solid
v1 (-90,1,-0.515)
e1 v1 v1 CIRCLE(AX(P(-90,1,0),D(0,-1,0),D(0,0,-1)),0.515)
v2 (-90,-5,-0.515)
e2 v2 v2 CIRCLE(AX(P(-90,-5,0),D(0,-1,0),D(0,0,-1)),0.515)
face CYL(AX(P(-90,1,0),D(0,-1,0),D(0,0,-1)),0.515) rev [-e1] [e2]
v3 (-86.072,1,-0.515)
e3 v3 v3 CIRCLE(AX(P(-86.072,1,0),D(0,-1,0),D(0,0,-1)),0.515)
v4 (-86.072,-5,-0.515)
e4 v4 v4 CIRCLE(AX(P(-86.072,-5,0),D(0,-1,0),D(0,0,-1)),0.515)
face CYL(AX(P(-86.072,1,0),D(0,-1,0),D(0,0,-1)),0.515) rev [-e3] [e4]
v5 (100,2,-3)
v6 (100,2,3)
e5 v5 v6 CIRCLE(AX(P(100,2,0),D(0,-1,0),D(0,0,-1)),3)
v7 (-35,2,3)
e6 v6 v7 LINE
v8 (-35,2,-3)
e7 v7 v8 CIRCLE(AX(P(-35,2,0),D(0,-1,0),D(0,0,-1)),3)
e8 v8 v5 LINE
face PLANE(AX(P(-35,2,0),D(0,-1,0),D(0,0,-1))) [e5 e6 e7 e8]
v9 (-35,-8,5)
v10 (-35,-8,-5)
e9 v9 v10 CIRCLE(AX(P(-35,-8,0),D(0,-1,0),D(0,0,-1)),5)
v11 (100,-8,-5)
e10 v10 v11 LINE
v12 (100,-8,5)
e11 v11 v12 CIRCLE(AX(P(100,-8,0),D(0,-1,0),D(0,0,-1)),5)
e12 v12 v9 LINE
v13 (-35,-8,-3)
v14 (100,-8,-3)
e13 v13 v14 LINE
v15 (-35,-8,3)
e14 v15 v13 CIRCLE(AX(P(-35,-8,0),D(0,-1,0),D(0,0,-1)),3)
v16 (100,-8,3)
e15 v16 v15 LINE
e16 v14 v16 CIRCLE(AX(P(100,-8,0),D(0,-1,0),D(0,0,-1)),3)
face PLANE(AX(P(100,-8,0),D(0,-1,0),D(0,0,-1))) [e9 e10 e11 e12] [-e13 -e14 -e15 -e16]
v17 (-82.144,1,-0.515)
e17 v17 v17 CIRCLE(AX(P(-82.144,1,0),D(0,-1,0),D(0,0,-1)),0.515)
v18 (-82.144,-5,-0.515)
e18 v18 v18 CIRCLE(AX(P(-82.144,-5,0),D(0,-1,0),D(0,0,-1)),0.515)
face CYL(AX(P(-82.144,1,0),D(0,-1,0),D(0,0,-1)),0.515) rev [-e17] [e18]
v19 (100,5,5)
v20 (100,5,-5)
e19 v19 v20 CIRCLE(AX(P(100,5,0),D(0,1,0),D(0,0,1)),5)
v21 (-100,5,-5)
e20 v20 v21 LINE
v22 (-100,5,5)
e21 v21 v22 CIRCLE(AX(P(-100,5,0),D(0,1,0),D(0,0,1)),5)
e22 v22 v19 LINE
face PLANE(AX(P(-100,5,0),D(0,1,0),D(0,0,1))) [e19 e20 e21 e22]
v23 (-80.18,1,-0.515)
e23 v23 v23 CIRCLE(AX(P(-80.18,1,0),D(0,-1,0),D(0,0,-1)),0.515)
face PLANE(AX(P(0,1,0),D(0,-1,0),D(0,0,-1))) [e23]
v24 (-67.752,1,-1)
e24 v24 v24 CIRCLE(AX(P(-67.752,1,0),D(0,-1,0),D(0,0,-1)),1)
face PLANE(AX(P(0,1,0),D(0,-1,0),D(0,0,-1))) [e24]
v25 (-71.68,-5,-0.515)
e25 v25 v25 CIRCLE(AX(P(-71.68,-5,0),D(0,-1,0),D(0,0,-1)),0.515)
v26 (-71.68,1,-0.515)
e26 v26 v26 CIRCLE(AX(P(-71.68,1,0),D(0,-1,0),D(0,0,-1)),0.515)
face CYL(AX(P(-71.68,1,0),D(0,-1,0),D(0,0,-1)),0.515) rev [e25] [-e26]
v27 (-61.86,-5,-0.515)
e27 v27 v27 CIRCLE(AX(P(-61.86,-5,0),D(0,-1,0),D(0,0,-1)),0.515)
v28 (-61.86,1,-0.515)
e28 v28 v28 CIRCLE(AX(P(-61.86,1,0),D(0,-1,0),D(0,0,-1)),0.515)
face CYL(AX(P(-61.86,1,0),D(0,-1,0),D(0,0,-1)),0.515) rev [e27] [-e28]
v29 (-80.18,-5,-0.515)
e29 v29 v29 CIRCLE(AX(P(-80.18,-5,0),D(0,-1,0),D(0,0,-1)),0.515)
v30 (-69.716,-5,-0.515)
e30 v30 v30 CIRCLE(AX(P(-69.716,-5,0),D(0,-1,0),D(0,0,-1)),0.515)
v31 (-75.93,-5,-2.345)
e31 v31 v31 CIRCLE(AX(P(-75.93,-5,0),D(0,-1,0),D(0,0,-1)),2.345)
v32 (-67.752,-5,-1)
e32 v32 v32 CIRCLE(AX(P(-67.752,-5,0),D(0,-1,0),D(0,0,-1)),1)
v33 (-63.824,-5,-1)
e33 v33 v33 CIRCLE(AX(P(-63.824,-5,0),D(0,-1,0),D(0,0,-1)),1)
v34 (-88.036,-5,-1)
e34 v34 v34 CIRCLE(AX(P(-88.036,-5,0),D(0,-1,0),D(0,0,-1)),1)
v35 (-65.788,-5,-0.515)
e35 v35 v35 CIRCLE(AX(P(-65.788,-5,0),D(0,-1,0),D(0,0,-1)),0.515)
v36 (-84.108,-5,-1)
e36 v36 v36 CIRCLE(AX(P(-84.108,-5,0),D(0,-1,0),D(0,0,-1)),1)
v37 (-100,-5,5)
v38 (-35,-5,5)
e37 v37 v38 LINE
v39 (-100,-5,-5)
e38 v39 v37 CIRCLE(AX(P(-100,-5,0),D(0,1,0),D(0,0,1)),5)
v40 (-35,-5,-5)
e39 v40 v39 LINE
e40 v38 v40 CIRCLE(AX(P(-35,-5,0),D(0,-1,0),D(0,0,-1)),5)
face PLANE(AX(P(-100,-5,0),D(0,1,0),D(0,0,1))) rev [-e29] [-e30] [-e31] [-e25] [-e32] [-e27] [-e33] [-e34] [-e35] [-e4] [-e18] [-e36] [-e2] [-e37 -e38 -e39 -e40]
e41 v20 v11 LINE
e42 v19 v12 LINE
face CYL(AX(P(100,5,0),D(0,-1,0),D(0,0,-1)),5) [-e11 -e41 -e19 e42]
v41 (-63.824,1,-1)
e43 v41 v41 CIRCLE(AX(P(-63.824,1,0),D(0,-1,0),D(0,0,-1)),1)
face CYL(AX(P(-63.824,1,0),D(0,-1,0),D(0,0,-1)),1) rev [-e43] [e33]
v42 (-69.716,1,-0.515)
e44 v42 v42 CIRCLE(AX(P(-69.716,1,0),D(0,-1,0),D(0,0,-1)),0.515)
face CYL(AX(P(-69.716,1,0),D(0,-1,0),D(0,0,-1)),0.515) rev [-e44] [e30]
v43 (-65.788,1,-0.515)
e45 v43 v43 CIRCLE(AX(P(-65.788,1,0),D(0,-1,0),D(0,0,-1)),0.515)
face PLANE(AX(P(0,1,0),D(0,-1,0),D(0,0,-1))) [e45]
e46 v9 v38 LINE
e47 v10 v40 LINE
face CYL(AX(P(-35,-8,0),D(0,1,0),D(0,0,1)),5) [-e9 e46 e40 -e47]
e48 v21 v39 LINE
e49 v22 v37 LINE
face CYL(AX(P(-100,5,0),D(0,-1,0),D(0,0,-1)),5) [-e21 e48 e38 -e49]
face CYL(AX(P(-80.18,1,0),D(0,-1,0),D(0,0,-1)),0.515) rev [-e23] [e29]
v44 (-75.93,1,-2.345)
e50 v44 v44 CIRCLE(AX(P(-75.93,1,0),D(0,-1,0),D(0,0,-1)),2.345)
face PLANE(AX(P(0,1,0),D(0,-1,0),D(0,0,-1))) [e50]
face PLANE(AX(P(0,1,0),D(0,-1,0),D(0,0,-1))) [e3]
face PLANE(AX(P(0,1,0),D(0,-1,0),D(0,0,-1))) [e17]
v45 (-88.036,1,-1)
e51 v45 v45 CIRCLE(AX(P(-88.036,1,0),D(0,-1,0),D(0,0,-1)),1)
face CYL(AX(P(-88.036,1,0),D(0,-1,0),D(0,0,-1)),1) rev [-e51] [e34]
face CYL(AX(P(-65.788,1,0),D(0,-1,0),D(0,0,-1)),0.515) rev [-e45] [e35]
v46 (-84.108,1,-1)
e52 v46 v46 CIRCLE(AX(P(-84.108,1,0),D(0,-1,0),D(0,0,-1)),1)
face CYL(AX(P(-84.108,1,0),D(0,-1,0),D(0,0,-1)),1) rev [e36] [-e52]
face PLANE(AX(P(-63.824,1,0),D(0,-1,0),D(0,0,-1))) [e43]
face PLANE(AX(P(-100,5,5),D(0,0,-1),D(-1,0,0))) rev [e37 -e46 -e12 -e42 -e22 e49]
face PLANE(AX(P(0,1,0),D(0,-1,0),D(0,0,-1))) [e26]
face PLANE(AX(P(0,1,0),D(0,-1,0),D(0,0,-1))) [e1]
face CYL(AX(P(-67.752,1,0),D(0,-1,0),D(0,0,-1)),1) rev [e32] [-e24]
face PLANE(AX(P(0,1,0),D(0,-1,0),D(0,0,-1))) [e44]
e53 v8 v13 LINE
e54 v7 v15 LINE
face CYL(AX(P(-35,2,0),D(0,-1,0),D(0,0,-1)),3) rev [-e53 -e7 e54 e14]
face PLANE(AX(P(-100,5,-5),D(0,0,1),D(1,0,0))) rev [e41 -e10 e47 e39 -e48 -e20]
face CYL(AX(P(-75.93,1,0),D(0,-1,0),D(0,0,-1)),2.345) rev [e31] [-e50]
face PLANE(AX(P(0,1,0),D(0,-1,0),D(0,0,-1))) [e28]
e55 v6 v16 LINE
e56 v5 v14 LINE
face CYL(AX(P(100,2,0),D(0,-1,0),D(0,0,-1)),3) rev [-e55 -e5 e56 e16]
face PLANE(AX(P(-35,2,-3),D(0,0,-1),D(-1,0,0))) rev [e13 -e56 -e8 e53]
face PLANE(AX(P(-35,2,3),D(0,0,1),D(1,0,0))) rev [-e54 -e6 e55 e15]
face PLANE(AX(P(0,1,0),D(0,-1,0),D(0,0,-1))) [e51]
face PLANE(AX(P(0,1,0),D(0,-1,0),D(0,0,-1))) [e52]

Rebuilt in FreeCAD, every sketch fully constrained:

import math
import FreeCAD as App
import Part
import Sketcher

doc = App.newDocument("Part")
params = doc.addObject("Spreadsheet::Sheet", "Params")
for row, (alias, value) in enumerate([
    ("sketch1_radius", "5 mm"),
    ("sketch1_width", "200 mm"),
    ("pad1_length", "10 mm"),
    ("sketch2_diameter", "2 mm"),
    ("sketch2_diameter2", "1.03 mm"),
    ("sketch2_diameter3", "4.69 mm"),
    ("pocket1_length", "6 mm"),
    ("sketch3_radius", "5 mm"),
    ("sketch3_width", "135 mm"),
    ("pad2_length", "3 mm"),
    ("sketch4_radius", "3 mm"),
    ("sketch4_width", "135 mm"),
    ("pocket2_length", "10 mm"),
], start=1):
    params.set(f"A{row}", alias)
    params.set(f"B{row}", "=" + value)
    params.setAlias(f"B{row}", alias)

body = doc.addObject("PartDesign::Body", "Body")

# Sketch on XZ plane
sketch1 = doc.addObject("Sketcher::SketchObject", "Sketch")
body.addObject(sketch1)
sketch1.AttachmentSupport = (doc.XZ_Plane, [""])
sketch1.MapMode = "FlatFace"
sketch1.addGeometry(Part.LineSegment(App.Vector(100, -5, 0), App.Vector(-100, -5, 0)), False)
sketch1.addGeometry(Part.ArcOfCircle(Part.Circle(App.Vector(-100, 0, 0), App.Vector(0, 0, 1), 5), math.radians(90), math.radians(270)), False)
sketch1.addGeometry(Part.LineSegment(App.Vector(-100, 5, 0), App.Vector(100, 5, 0)), False)
sketch1.addGeometry(Part.ArcOfCircle(Part.Circle(App.Vector(100, 0, 0), App.Vector(0, 0, 1), 5), math.radians(-90), math.radians(90)), False)
sketch1.addConstraint(Sketcher.Constraint("Tangent", 0, 2, 1, 2))
sketch1.addConstraint(Sketcher.Constraint("Tangent", 1, 1, 2, 1))
sketch1.addConstraint(Sketcher.Constraint("Tangent", 2, 2, 3, 2))
sketch1.addConstraint(Sketcher.Constraint("Tangent", 3, 1, 0, 1))
sketch1.addConstraint(Sketcher.Constraint("Horizontal", 0))
sketch1.addConstraint(Sketcher.Constraint("Horizontal", 2))
sketch1.addConstraint(Sketcher.Constraint("Symmetric", 1, 3, 3, 3, -1, 1))
sketch1.addConstraint(Sketcher.Constraint("Radius", 1, 5.0))
sketch1.addConstraint(Sketcher.Constraint("DistanceX", 0, 2, 0, 1, 200.0))
sketch1.setExpression("Constraints[7]", "Params.sketch1_radius")
sketch1.setExpression("Constraints[8]", "Params.sketch1_width")
pad1 = doc.addObject("PartDesign::Pad", "Pad")
body.addObject(pad1)
pad1.Profile = sketch1
pad1.setExpression("Length", "Params.pad1_length")
pad1.Midplane = True

# Sketch on XZ plane
sketch2 = doc.addObject("Sketcher::SketchObject", "Sketch001")
body.addObject(sketch2)
sketch2.AttachmentSupport = (doc.XZ_Plane, [""])
sketch2.MapMode = "FlatFace"
sketch2.AttachmentOffset = App.Placement(App.Vector(0, 0, 5), App.Rotation())
sketch2.addGeometry(Part.Circle(App.Vector(-90, 0, 0), App.Vector(0, 0, 1), 0.5), False)
sketch2.addGeometry(Part.Circle(App.Vector(-88, 0, 0), App.Vector(0, 0, 1), 1), False)
sketch2.addGeometry(Part.Circle(App.Vector(-86.1, 0, 0), App.Vector(0, 0, 1), 0.5), False)
sketch2.addGeometry(Part.Circle(App.Vector(-84.1, 0, 0), App.Vector(0, 0, 1), 1), False)
sketch2.addGeometry(Part.Circle(App.Vector(-82.1, 0, 0), App.Vector(0, 0, 1), 0.5), False)
sketch2.addGeometry(Part.Circle(App.Vector(-80.2, 0, 0), App.Vector(0, 0, 1), 0.5), False)
sketch2.addGeometry(Part.Circle(App.Vector(-75.9, 0, 0), App.Vector(0, 0, 1), 2.3), False)
sketch2.addGeometry(Part.Circle(App.Vector(-71.7, 0, 0), App.Vector(0, 0, 1), 0.5), False)
sketch2.addGeometry(Part.Circle(App.Vector(-69.7, 0, 0), App.Vector(0, 0, 1), 0.5), False)
sketch2.addGeometry(Part.Circle(App.Vector(-67.8, 0, 0), App.Vector(0, 0, 1), 1), False)
sketch2.addGeometry(Part.Circle(App.Vector(-65.8, 0, 0), App.Vector(0, 0, 1), 0.5), False)
sketch2.addGeometry(Part.Circle(App.Vector(-61.9, 0, 0), App.Vector(0, 0, 1), 0.5), False)
sketch2.addGeometry(Part.Circle(App.Vector(-63.8, 0, 0), App.Vector(0, 0, 1), 1), False)
sketch2.addConstraint(Sketcher.Constraint("Equal", 0, 2))
sketch2.addConstraint(Sketcher.Constraint("Equal", 1, 3))
sketch2.addConstraint(Sketcher.Constraint("Equal", 2, 4))
sketch2.addConstraint(Sketcher.Constraint("Equal", 4, 5))
sketch2.addConstraint(Sketcher.Constraint("Equal", 5, 7))
sketch2.addConstraint(Sketcher.Constraint("Equal", 7, 8))
sketch2.addConstraint(Sketcher.Constraint("Equal", 3, 9))
sketch2.addConstraint(Sketcher.Constraint("Equal", 8, 10))
sketch2.addConstraint(Sketcher.Constraint("Equal", 10, 11))
sketch2.addConstraint(Sketcher.Constraint("Equal", 9, 12))
sketch2.addConstraint(Sketcher.Constraint("PointOnObject", 0, 3, -1))
sketch2.addConstraint(Sketcher.Constraint("PointOnObject", 1, 3, -1))
sketch2.addConstraint(Sketcher.Constraint("PointOnObject", 2, 3, -1))
sketch2.addConstraint(Sketcher.Constraint("PointOnObject", 3, 3, -1))
sketch2.addConstraint(Sketcher.Constraint("PointOnObject", 4, 3, -1))
sketch2.addConstraint(Sketcher.Constraint("PointOnObject", 5, 3, -1))
sketch2.addConstraint(Sketcher.Constraint("PointOnObject", 6, 3, -1))
sketch2.addConstraint(Sketcher.Constraint("PointOnObject", 7, 3, -1))
sketch2.addConstraint(Sketcher.Constraint("PointOnObject", 8, 3, -1))
sketch2.addConstraint(Sketcher.Constraint("PointOnObject", 9, 3, -1))
sketch2.addConstraint(Sketcher.Constraint("PointOnObject", 10, 3, -1))
sketch2.addConstraint(Sketcher.Constraint("PointOnObject", 11, 3, -1))
sketch2.addConstraint(Sketcher.Constraint("PointOnObject", 12, 3, -1))
sketch2.addConstraint(Sketcher.Constraint("Diameter", 1, 2.0))
sketch2.addConstraint(Sketcher.Constraint("Diameter", 0, 1.03))
sketch2.addConstraint(Sketcher.Constraint("Diameter", 6, 4.69))
sketch2.addConstraint(Sketcher.Constraint("DistanceX", 0, 3, -1, 1, 90.0))
sketch2.addConstraint(Sketcher.Constraint("DistanceX", 5, 3, 7, 3, 8.5))
sketch2.addConstraint(Sketcher.Constraint("DistanceX", 5, 3, -1, 1, 80.18))
sketch2.addConstraint(Sketcher.Constraint("DistanceX", 6, 3, -1, 1, 75.93))
sketch2.addConstraint(Sketcher.Constraint("DistanceX", 11, 3, -1, 1, 61.86))
sketch2.addConstraint(Sketcher.Constraint("DistanceX", 1, 3, -1, 1, 88.036))
sketch2.addConstraint(Sketcher.Constraint("DistanceX", 2, 3, -1, 1, 86.072))
sketch2.addConstraint(Sketcher.Constraint("DistanceX", 3, 3, -1, 1, 84.108))
sketch2.addConstraint(Sketcher.Constraint("DistanceX", 4, 3, -1, 1, 82.144))
sketch2.addConstraint(Sketcher.Constraint("DistanceX", 8, 3, -1, 1, 69.716))
sketch2.addConstraint(Sketcher.Constraint("DistanceX", 9, 3, -1, 1, 67.752))
sketch2.addConstraint(Sketcher.Constraint("DistanceX", 10, 3, -1, 1, 65.788))
sketch2.addConstraint(Sketcher.Constraint("DistanceX", 12, 3, -1, 1, 63.824))
sketch2.setExpression("Constraints[23]", "Params.sketch2_diameter")
sketch2.setExpression("Constraints[24]", "Params.sketch2_diameter2")
sketch2.setExpression("Constraints[25]", "Params.sketch2_diameter3")
pocket1 = doc.addObject("PartDesign::Pocket", "Pocket")
body.addObject(pocket1)
pocket1.Profile = sketch2
pocket1.setExpression("Length", "Params.pocket1_length")

# Sketch on XZ plane
sketch3 = doc.addObject("Sketcher::SketchObject", "Sketch002")
body.addObject(sketch3)
sketch3.AttachmentSupport = (doc.XZ_Plane, [""])
sketch3.MapMode = "FlatFace"
sketch3.AttachmentOffset = App.Placement(App.Vector(0, 0, 5), App.Rotation())
sketch3.addGeometry(Part.LineSegment(App.Vector(-35, -5, 0), App.Vector(100, -5, 0)), False)
sketch3.addGeometry(Part.ArcOfCircle(Part.Circle(App.Vector(100, 0, 0), App.Vector(0, 0, 1), 5), math.radians(-90), math.radians(90)), False)
sketch3.addGeometry(Part.LineSegment(App.Vector(100, 5, 0), App.Vector(-35, 5, 0)), False)
sketch3.addGeometry(Part.ArcOfCircle(Part.Circle(App.Vector(-35, 0, 0), App.Vector(0, 0, 1), 5), math.radians(90), math.radians(270)), False)
sketch3.addConstraint(Sketcher.Constraint("Tangent", 0, 2, 1, 1))
sketch3.addConstraint(Sketcher.Constraint("Tangent", 1, 2, 2, 1))
sketch3.addConstraint(Sketcher.Constraint("Tangent", 2, 2, 3, 1))
sketch3.addConstraint(Sketcher.Constraint("Tangent", 3, 2, 0, 1))
sketch3.addConstraint(Sketcher.Constraint("Horizontal", 0))
sketch3.addConstraint(Sketcher.Constraint("Horizontal", 2))
sketch3.addConstraint(Sketcher.Constraint("PointOnObject", 1, 3, -1))
sketch3.addConstraint(Sketcher.Constraint("Radius", 1, 5.0))
sketch3.addConstraint(Sketcher.Constraint("DistanceX", 0, 1, 0, 2, 135.0))
sketch3.addConstraint(Sketcher.Constraint("DistanceX", -1, 1, 1, 3, 100.0))
sketch3.setExpression("Constraints[7]", "Params.sketch3_radius")
sketch3.setExpression("Constraints[8]", "Params.sketch3_width")
pad2 = doc.addObject("PartDesign::Pad", "Pad001")
body.addObject(pad2)
pad2.Profile = sketch3
pad2.setExpression("Length", "Params.pad2_length")

# Sketch on XZ plane
sketch4 = doc.addObject("Sketcher::SketchObject", "Sketch003")
body.addObject(sketch4)
sketch4.AttachmentSupport = (doc.XZ_Plane, [""])
sketch4.MapMode = "FlatFace"
sketch4.AttachmentOffset = App.Placement(App.Vector(0, 0, 8), App.Rotation())
sketch4.addGeometry(Part.LineSegment(App.Vector(100, 3, 0), App.Vector(-35, 3, 0)), False)
sketch4.addGeometry(Part.ArcOfCircle(Part.Circle(App.Vector(-35, 0, 0), App.Vector(0, 0, 1), 3), math.radians(90), math.radians(270)), False)
sketch4.addGeometry(Part.LineSegment(App.Vector(-35, -3, 0), App.Vector(100, -3, 0)), False)
sketch4.addGeometry(Part.ArcOfCircle(Part.Circle(App.Vector(100, 0, 0), App.Vector(0, 0, 1), 3), math.radians(-90), math.radians(90)), False)
sketch4.addConstraint(Sketcher.Constraint("Tangent", 0, 2, 1, 1))
sketch4.addConstraint(Sketcher.Constraint("Tangent", 1, 2, 2, 1))
sketch4.addConstraint(Sketcher.Constraint("Tangent", 2, 2, 3, 1))
sketch4.addConstraint(Sketcher.Constraint("Tangent", 3, 2, 0, 1))
sketch4.addConstraint(Sketcher.Constraint("Horizontal", 0))
sketch4.addConstraint(Sketcher.Constraint("Horizontal", 2))
sketch4.addConstraint(Sketcher.Constraint("PointOnObject", 1, 3, -1))
sketch4.addConstraint(Sketcher.Constraint("Radius", 1, 3.0))
sketch4.addConstraint(Sketcher.Constraint("DistanceX", 0, 2, 0, 1, 135.0))
sketch4.addConstraint(Sketcher.Constraint("DistanceX", 1, 3, -1, 1, 35.0))
sketch4.setExpression("Constraints[7]", "Params.sketch4_radius")
sketch4.setExpression("Constraints[8]", "Params.sketch4_width")
pocket2 = doc.addObject("PartDesign::Pocket", "Pocket001")
body.addObject(pocket2)
pocket2.Profile = sketch4
pocket2.setExpression("Length", "Params.pocket2_length")

doc.recompute()
